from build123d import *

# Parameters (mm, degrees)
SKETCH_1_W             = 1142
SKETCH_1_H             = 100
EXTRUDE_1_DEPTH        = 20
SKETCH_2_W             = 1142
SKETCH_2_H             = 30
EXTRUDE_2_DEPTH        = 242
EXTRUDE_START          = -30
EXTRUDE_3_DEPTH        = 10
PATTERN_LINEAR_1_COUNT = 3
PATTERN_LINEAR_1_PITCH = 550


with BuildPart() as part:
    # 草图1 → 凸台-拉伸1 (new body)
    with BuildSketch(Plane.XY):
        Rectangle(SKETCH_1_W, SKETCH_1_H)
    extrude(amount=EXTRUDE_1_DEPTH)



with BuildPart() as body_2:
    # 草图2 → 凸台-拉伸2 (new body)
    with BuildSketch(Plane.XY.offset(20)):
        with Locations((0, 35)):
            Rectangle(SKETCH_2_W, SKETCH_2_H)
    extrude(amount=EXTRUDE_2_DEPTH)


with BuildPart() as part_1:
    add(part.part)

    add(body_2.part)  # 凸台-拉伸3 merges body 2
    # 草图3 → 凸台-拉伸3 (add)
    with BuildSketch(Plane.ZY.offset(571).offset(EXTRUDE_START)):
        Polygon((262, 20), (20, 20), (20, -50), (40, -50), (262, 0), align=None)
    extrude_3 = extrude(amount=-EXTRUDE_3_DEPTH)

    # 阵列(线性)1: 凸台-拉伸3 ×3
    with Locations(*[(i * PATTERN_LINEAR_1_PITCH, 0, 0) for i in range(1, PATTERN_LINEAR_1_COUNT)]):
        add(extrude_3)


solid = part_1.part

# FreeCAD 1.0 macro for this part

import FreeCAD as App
import Part
import Sketcher
from FreeCAD import Vector

doc = App.newDocument("Part")
body = doc.addObject("PartDesign::Body", "Body")

sketch1 = doc.addObject("Sketcher::SketchObject", "Sketch")
body.addObject(sketch1)
sketch1.AttachmentSupport = (doc.XY_Plane, [""])
sketch1.MapMode = "FlatFace"
sketch1.addGeometry([
    Part.LineSegment(Vector(-571, 50, 0), Vector(-571, -50, 0)),
    Part.LineSegment(Vector(-571, -50, 0), Vector(571, -50, 0)),
    Part.LineSegment(Vector(571, -50, 0), Vector(571, 50, 0)),
    Part.LineSegment(Vector(571, 50, 0), Vector(-571, 50, 0)),
], False)
sketch1.addConstraint([
    Sketcher.Constraint("Coincident", 0, 2, 1, 1),
    Sketcher.Constraint("Coincident", 1, 2, 2, 1),
    Sketcher.Constraint("Coincident", 2, 2, 3, 1),
    Sketcher.Constraint("Coincident", 3, 2, 0, 1),
    Sketcher.Constraint("Vertical", 0),
    Sketcher.Constraint("Horizontal", 1),
    Sketcher.Constraint("Vertical", 2),
    Sketcher.Constraint("Horizontal", 3),
    Sketcher.Constraint("Symmetric", 0, 2, 2, 2, -1, 1),
    Sketcher.Constraint("DistanceX", 1, 1, 1, 2, 1142.0),
    Sketcher.Constraint("DistanceY", 0, 2, 0, 1, 100.0),
])
pad1 = doc.addObject("PartDesign::Pad", "Pad")
body.addObject(pad1)
pad1.Profile = sketch1
pad1.Length = 20
body2 = doc.addObject("PartDesign::Body", "Body001")

sketch2 = doc.addObject("Sketcher::SketchObject", "Sketch001")
body2.addObject(sketch2)
sketch2.AttachmentSupport = (doc.getObject("XY_Plane001"), [""])
sketch2.MapMode = "FlatFace"
sketch2.AttachmentOffset = App.Placement(Vector(0, 0, 20), App.Rotation())
sketch2.addGeometry([
    Part.LineSegment(Vector(-571, 50, 0), Vector(-571, 20, 0)),
    Part.LineSegment(Vector(-571, 20, 0), Vector(571, 20, 0)),
    Part.LineSegment(Vector(571, 20, 0), Vector(571, 50, 0)),
    Part.LineSegment(Vector(571, 50, 0), Vector(-571, 50, 0)),
], False)
sketch2.addConstraint([
    Sketcher.Constraint("Coincident", 0, 2, 1, 1),
    Sketcher.Constraint("Coincident", 1, 2, 2, 1),
    Sketcher.Constraint("Coincident", 2, 2, 3, 1),
    Sketcher.Constraint("Coincident", 3, 2, 0, 1),
    Sketcher.Constraint("Vertical", 0),
    Sketcher.Constraint("Horizontal", 1),
    Sketcher.Constraint("Vertical", 2),
    Sketcher.Constraint("Horizontal", 3),
    Sketcher.Constraint("DistanceX", 1, 1, 1, 2, 1142.0),
    Sketcher.Constraint("DistanceY", 0, 2, 0, 1, 30.0),
    Sketcher.Constraint("DistanceX", 0, 2, -1, 1, 571.0),
    Sketcher.Constraint("DistanceY", -1, 1, 0, 2, 20.0),
])
pad2 = doc.addObject("PartDesign::Pad", "Pad001")
body2.addObject(pad2)
pad2.Profile = sketch2
pad2.Length = 242
doc.recompute()

boolean = doc.addObject("PartDesign::Boolean", "Boolean")
body.addObject(boolean)
boolean.Type = "Fuse"
boolean.addObjects([body2])

sketch3 = doc.addObject("Sketcher::SketchObject", "Sketch002")
body.addObject(sketch3)
sketch3.AttachmentSupport = (doc.YZ_Plane, [""])
sketch3.MapMode = "FlatFace"
sketch3.AttachmentOffset = App.Placement(Vector(0, 0, -541), App.Rotation())
sketch3.addGeometry([
    Part.LineSegment(Vector(20, 262, 0), Vector(20, 20, 0)),
    Part.LineSegment(Vector(20, 20, 0), Vector(-50, 20, 0)),
    Part.LineSegment(Vector(-50, 20, 0), Vector(-50, 40, 0)),
    Part.LineSegment(Vector(-50, 40, 0), Vector(0, 262, 0)),
    Part.LineSegment(Vector(0, 262, 0), Vector(20, 262, 0)),
], False)
sketch3.addConstraint([
    Sketcher.Constraint("Coincident", 0, 2, 1, 1),
    Sketcher.Constraint("Coincident", 1, 2, 2, 1),
    Sketcher.Constraint("Coincident", 2, 2, 3, 1),
    Sketcher.Constraint("Coincident", 3, 2, 4, 1),
    Sketcher.Constraint("Coincident", 4, 2, 0, 1),
    Sketcher.Constraint("Vertical", 0),
    Sketcher.Constraint("Horizontal", 1),
    Sketcher.Constraint("Vertical", 2),
    Sketcher.Constraint("Horizontal", 4),
    Sketcher.Constraint("PointOnObject", 3, 2, -2),
    Sketcher.Constraint("Equal", 4, 2),
    Sketcher.Constraint("DistanceX", 1, 2, 1, 1, 70.0),
    Sketcher.Constraint("DistanceX", 4, 1, 4, 2, 20.0),
    Sketcher.Constraint("DistanceY", 0, 2, 0, 1, 242.0),
    Sketcher.Constraint("DistanceY", -1, 1, 0, 2, 20.0),
])
pad3 = doc.addObject("PartDesign::Pad", "Pad002")
body.addObject(pad3)
pad3.Profile = sketch3
pad3.Length = 10
doc.recompute()

linearpattern = doc.addObject("PartDesign::LinearPattern", "LinearPattern")
body.addObject(linearpattern)
linearpattern.Originals = [pad3]
linearpattern.Direction = (doc.X_Axis, [""])
linearpattern.Mode = "offset"
linearpattern.Offset = 550
linearpattern.Occurrences = 3
body.Tip = linearpattern

doc.recompute()
